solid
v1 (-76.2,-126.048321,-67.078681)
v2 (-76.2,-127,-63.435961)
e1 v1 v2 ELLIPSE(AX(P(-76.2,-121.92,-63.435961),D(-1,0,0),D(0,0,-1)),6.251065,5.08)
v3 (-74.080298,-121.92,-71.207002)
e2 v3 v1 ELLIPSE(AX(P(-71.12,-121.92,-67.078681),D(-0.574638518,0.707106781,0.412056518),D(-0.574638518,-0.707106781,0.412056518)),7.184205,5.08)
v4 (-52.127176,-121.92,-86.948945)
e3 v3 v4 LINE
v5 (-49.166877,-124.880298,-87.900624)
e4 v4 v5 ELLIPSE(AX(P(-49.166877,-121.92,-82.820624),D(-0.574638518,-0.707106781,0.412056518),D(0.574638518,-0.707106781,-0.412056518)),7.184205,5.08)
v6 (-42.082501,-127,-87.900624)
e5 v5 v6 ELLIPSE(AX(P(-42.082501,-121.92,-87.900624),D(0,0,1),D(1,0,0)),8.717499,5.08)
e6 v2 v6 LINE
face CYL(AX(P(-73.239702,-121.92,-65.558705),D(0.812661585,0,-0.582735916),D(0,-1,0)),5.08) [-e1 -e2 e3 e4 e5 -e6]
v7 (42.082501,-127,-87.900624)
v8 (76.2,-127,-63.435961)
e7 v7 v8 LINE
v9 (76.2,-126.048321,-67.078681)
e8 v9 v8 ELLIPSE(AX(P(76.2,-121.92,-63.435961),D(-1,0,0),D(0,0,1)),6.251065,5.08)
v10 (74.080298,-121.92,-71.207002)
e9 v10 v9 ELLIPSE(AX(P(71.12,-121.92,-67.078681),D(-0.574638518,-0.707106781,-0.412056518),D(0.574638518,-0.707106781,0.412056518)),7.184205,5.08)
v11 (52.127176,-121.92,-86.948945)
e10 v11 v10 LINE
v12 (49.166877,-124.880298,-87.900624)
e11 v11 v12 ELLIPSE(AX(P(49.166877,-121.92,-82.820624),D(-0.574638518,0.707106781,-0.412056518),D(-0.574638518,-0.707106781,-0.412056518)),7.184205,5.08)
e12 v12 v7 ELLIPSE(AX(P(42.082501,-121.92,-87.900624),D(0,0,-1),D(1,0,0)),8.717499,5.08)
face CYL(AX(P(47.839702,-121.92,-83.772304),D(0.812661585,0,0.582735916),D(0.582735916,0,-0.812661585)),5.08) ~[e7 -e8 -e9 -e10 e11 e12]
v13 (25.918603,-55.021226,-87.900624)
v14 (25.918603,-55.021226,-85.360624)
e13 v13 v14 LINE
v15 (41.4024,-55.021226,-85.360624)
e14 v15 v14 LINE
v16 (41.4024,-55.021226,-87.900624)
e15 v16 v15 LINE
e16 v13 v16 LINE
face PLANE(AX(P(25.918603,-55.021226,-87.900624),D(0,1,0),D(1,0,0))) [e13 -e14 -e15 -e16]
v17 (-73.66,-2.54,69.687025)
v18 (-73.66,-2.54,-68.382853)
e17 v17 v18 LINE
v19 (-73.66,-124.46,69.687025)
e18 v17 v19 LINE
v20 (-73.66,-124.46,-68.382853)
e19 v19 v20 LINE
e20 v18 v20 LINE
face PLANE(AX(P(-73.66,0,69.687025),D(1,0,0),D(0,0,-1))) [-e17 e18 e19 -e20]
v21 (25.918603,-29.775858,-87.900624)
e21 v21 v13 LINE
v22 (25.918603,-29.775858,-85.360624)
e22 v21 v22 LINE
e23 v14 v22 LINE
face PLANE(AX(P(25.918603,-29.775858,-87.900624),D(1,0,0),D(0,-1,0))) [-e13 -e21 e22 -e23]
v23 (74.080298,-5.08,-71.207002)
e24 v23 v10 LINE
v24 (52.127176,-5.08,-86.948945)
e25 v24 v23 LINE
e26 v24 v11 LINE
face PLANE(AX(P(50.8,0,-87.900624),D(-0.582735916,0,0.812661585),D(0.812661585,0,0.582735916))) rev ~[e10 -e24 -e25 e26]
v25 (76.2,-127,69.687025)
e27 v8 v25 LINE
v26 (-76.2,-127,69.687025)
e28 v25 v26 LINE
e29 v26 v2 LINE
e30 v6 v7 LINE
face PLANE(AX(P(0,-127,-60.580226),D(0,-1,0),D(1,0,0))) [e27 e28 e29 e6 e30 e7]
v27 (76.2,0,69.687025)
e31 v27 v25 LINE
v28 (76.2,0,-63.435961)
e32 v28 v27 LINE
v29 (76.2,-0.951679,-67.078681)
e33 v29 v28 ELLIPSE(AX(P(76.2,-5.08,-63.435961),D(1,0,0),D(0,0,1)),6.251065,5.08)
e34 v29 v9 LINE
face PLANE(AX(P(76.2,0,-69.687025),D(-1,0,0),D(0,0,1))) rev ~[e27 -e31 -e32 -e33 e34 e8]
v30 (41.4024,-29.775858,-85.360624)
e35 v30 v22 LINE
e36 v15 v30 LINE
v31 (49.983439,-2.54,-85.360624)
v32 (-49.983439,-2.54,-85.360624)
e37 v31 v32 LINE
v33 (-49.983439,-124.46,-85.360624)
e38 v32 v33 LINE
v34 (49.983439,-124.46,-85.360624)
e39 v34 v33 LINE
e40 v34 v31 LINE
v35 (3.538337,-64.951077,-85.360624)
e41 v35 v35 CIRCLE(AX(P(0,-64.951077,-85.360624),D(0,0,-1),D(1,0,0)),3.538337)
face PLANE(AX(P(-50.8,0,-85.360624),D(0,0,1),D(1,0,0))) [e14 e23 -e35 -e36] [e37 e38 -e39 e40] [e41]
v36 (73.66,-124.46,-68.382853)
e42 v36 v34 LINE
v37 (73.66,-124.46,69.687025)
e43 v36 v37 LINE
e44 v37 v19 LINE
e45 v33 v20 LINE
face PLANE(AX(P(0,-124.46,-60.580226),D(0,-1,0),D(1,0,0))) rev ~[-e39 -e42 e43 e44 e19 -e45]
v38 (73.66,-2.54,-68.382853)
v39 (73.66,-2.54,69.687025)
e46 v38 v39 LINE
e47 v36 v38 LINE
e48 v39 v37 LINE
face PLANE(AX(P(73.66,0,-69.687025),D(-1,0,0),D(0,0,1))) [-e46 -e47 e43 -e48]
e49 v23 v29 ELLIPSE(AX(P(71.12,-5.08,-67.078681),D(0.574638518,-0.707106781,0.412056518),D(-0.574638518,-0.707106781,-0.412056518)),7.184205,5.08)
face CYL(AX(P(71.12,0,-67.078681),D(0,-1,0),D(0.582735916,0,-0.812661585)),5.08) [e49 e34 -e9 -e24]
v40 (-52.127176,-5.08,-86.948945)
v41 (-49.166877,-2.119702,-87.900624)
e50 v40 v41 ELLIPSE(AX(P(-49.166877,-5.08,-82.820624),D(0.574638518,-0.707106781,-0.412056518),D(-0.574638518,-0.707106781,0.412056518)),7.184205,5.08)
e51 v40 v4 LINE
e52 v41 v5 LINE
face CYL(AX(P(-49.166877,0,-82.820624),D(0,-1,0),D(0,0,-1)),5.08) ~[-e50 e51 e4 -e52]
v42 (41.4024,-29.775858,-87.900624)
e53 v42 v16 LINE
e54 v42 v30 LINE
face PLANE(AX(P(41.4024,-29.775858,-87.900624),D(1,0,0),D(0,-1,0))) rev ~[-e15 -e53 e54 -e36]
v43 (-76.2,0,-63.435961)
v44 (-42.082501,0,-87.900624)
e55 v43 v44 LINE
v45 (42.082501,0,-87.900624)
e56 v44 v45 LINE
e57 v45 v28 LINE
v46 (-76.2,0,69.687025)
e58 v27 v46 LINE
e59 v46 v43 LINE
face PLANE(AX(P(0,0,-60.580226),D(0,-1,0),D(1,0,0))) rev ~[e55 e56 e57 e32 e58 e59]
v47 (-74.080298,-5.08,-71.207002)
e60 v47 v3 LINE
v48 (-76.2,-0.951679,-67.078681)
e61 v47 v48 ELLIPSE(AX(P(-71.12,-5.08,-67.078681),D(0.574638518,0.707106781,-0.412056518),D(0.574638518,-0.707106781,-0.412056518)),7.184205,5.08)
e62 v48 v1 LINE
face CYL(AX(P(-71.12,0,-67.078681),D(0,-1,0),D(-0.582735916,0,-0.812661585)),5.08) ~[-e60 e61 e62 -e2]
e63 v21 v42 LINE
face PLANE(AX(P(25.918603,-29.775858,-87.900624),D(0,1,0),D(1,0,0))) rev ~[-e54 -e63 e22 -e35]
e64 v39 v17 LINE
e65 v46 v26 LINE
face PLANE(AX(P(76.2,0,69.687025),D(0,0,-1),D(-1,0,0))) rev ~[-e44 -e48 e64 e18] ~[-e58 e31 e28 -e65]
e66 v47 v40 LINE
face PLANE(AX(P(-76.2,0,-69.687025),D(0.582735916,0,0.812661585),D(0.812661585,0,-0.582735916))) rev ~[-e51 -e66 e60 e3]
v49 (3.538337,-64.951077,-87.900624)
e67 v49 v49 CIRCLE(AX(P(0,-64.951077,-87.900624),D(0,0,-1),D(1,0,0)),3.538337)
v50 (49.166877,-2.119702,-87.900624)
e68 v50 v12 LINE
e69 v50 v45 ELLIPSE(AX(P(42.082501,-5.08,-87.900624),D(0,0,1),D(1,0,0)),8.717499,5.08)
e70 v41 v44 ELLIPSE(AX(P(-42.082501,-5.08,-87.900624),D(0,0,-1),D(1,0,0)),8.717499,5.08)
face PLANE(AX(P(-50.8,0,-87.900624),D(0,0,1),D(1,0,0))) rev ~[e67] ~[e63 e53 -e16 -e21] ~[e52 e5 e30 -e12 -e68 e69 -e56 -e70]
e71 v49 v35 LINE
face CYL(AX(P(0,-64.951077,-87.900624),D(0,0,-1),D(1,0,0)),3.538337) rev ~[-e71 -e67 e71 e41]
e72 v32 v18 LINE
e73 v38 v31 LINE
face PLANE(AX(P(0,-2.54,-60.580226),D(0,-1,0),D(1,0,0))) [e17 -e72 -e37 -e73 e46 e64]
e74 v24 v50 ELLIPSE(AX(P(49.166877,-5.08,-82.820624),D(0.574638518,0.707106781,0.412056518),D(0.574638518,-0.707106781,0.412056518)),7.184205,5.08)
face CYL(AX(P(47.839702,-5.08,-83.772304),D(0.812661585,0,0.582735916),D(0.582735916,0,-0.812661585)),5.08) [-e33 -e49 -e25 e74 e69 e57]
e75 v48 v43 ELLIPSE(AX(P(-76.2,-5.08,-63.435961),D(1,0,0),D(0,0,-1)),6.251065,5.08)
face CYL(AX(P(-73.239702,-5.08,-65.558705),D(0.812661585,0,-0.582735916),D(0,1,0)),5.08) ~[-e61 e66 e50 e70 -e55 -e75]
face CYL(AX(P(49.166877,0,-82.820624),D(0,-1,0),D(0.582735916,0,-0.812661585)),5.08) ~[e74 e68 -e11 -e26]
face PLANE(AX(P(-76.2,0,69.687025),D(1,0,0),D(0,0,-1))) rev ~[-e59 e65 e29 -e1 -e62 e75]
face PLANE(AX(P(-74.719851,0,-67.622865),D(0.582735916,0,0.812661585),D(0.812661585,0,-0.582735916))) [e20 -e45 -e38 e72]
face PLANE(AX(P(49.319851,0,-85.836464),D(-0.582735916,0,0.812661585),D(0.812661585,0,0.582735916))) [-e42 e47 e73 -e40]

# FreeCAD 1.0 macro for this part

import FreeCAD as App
import Part
import Sketcher
Q = App.Units.Quantity


def edges_at(feature, points):
    """Names of the edges that pass closest to the given points."""
    edges = feature.Shape.Edges
    near = lambda p: min(range(len(edges)), key=lambda i: edges[i].distToShape(Part.Vertex(*p))[0])
    return sorted({f"Edge{near(p) + 1}" for p in points})


def faces_at(feature, points):
    """Names of the faces that lie closest to the given points."""
    faces = feature.Shape.Faces
    near = lambda p: min(range(len(faces)), key=lambda i: faces[i].distToShape(Part.Vertex(*p))[0])
    return sorted({f"Face{near(p) + 1}" for p in points})


def add_polygon(sketch, points):
    """Adds a closed chain of lines whose ends are joined by coincident constraints."""
    first, n = sketch.GeometryCount, len(points)
    for a, b in zip(points, points[1:] + points[:1]):
        sketch.addGeometry(Part.LineSegment(App.Vector(*a, 0), App.Vector(*b, 0)), False)
    for i in range(n):
        sketch.addConstraint(Sketcher.Constraint("Coincident", first + i, 2, first + (i + 1) % n, 1))

doc = App.newDocument("Part")
body = doc.addObject("PartDesign::Body", "Body")

# Sketch on XZ plane
sketch1 = body.newObject("Sketcher::SketchObject", "Sketch")
sketch1.AttachmentSupport = (doc.getObject("XZ_Plane"), [""])
sketch1.MapMode = "FlatFace"
add_polygon(sketch1, [(50.8, -87.900624), (76.2, -69.687025), (76.2, 69.687025), (-76.2, 69.687025), (-76.2, -69.687025), (-50.8, -87.900624)])  # lines 0-5
sketch1.addConstraint(Sketcher.Constraint("Vertical", 1))
sketch1.addConstraint(Sketcher.Constraint("Horizontal", 2))
sketch1.addConstraint(Sketcher.Constraint("Vertical", 3))
sketch1.addConstraint(Sketcher.Constraint("Horizontal", 5))
sketch1.addConstraint(Sketcher.Constraint("Symmetric", 0, 2, 2, 2, -1, 1))
sketch1.addConstraint(Sketcher.Constraint("Horizontal", 0, 2, 3, 2))
sketch1.addConstraint(Sketcher.Constraint("Equal", 0, 4))
sketch1.addConstraint(Sketcher.Constraint("DistanceX", 2, 2, 2, 1, Q("6 in")))
sketch1.addConstraint(Sketcher.Constraint("DistanceX", 5, 1, 5, 2, Q("4 in")))
sketch1.addConstraint(Sketcher.Constraint("DistanceY", 1, 1, 1, 2, 139.374051))
sketch1.addConstraint(Sketcher.Constraint("DistanceY", 4, 2, 3, 2, 18.213599))
pad1 = body.newObject("PartDesign::Pad", "Pad")
pad1.Profile = sketch1
pad1.Length = Q("5 in")

# Sketch on XZ plane
sketch2 = body.newObject("Sketcher::SketchObject", "Sketch001")
sketch2.AttachmentSupport = (doc.getObject("XZ_Plane"), [""])
sketch2.MapMode = "FlatFace"
add_polygon(sketch2, [(50.8, -87.900624), (76.2, -69.687025), (76.2, 69.687025), (-76.2, 69.687025), (-76.2, -69.687025), (-50.8, -87.900624)])  # lines 0-5
sketch2.addConstraint(Sketcher.Constraint("Vertical", 1))
sketch2.addConstraint(Sketcher.Constraint("Horizontal", 2))
sketch2.addConstraint(Sketcher.Constraint("Vertical", 3))
sketch2.addConstraint(Sketcher.Constraint("Horizontal", 5))
sketch2.addConstraint(Sketcher.Constraint("Symmetric", 0, 2, 2, 2, -1, 1))
sketch2.addConstraint(Sketcher.Constraint("Horizontal", 0, 2, 3, 2))
sketch2.addConstraint(Sketcher.Constraint("Equal", 0, 4))
sketch2.addConstraint(Sketcher.Constraint("DistanceX", 2, 2, 2, 1, Q("6 in")))
sketch2.addConstraint(Sketcher.Constraint("DistanceX", 5, 1, 5, 2, Q("4 in")))
sketch2.addConstraint(Sketcher.Constraint("DistanceY", 1, 1, 1, 2, 139.374051))
sketch2.addConstraint(Sketcher.Constraint("DistanceY", 4, 2, 3, 2, 18.213599))
pad2 = body.newObject("PartDesign::Pad", "Pad001")
pad2.Profile = sketch2
pad2.Length = Q("5 in")
doc.recompute()

thickness = body.newObject("PartDesign::Thickness", "Thickness")
thickness.Base = (pad2, faces_at(pad2, [(0, -63.5, 69.687)]))
thickness.Value = Q("0.1 in")
thickness.Reversed = True
thickness.Join = "Arc"

# Sketch on XY plane
sketch3 = body.newObject("Sketcher::SketchObject", "Sketch002")
sketch3.AttachmentSupport = (doc.getObject("XY_Plane"), [""])
sketch3.MapMode = "FlatFace"
sketch3.AttachmentOffset = App.Placement(App.Vector(0, 0, -87.900624), App.Rotation())
add_polygon(sketch3, [(25.918603, -55.021226), (25.918603, -29.775858), (41.4024, -29.775858), (41.4024, -55.021226)])  # lines 0-3
sketch3.addConstraint(Sketcher.Constraint("Vertical", 0))
sketch3.addConstraint(Sketcher.Constraint("Horizontal", 1))
sketch3.addConstraint(Sketcher.Constraint("Vertical", 2))
sketch3.addConstraint(Sketcher.Constraint("Horizontal", 3))
sketch3.addConstraint(Sketcher.Constraint("DistanceY", 0, 1, 0, 2, 25.245368))
sketch3.addConstraint(Sketcher.Constraint("DistanceX", -1, 1, 1, 2, 41.4024))
sketch3.addConstraint(Sketcher.Constraint("DistanceX", 1, 1, 1, 2, 15.483797))
sketch3.addConstraint(Sketcher.Constraint("DistanceY", 0, 2, -1, 1, 29.775858))
pocket1 = body.newObject("PartDesign::Pocket", "Pocket")
pocket1.Profile = sketch3
pocket1.Length = Q("1 in")
pocket1.Reversed = True

# Sketch on XY plane
sketch4 = body.newObject("Sketcher::SketchObject", "Sketch003")
sketch4.AttachmentSupport = (doc.getObject("XY_Plane"), [""])
sketch4.MapMode = "FlatFace"
sketch4.AttachmentOffset = App.Placement(App.Vector(0, 0, -87.900624), App.Rotation())
sketch4.addGeometry(Part.Circle(App.Vector(0, -64.951077, 0), App.Vector(0, 0, 1), 3.538337), False)
sketch4.addConstraint(Sketcher.Constraint("PointOnObject", 0, 3, -2))
sketch4.addConstraint(Sketcher.Constraint("Diameter", 0, 7.076674))
sketch4.addConstraint(Sketcher.Constraint("DistanceY", 0, 3, -1, 1, 64.951077))
pocket2 = body.newObject("PartDesign::Pocket", "Pocket001")
pocket2.Profile = sketch4
pocket2.Length = Q("1 in")
pocket2.Reversed = True
doc.recompute()

fillet = body.newObject("PartDesign::Fillet", "Fillet")
fillet.Base = (pocket2, edges_at(pocket2, [
    (50.8, -63.5, -87.901),
    (76.2, -63.5, -69.687),
    (63.5, 0, -78.794),
    (63.5, -127, -78.794),
]))
fillet.Radius = Q("0.2 in")
doc.recompute()

fillet2 = body.newObject("PartDesign::Fillet", "Fillet001")
fillet2.Base = (fillet, edges_at(fillet, [
    (-76.2, -63.5, -69.687),
    (-50.8, -63.5, -87.901),
    (-63.5, 0, -78.794),
    (-63.5, -127, -78.794),
]))
fillet2.Radius = Q("0.2 in")

doc.recompute()
